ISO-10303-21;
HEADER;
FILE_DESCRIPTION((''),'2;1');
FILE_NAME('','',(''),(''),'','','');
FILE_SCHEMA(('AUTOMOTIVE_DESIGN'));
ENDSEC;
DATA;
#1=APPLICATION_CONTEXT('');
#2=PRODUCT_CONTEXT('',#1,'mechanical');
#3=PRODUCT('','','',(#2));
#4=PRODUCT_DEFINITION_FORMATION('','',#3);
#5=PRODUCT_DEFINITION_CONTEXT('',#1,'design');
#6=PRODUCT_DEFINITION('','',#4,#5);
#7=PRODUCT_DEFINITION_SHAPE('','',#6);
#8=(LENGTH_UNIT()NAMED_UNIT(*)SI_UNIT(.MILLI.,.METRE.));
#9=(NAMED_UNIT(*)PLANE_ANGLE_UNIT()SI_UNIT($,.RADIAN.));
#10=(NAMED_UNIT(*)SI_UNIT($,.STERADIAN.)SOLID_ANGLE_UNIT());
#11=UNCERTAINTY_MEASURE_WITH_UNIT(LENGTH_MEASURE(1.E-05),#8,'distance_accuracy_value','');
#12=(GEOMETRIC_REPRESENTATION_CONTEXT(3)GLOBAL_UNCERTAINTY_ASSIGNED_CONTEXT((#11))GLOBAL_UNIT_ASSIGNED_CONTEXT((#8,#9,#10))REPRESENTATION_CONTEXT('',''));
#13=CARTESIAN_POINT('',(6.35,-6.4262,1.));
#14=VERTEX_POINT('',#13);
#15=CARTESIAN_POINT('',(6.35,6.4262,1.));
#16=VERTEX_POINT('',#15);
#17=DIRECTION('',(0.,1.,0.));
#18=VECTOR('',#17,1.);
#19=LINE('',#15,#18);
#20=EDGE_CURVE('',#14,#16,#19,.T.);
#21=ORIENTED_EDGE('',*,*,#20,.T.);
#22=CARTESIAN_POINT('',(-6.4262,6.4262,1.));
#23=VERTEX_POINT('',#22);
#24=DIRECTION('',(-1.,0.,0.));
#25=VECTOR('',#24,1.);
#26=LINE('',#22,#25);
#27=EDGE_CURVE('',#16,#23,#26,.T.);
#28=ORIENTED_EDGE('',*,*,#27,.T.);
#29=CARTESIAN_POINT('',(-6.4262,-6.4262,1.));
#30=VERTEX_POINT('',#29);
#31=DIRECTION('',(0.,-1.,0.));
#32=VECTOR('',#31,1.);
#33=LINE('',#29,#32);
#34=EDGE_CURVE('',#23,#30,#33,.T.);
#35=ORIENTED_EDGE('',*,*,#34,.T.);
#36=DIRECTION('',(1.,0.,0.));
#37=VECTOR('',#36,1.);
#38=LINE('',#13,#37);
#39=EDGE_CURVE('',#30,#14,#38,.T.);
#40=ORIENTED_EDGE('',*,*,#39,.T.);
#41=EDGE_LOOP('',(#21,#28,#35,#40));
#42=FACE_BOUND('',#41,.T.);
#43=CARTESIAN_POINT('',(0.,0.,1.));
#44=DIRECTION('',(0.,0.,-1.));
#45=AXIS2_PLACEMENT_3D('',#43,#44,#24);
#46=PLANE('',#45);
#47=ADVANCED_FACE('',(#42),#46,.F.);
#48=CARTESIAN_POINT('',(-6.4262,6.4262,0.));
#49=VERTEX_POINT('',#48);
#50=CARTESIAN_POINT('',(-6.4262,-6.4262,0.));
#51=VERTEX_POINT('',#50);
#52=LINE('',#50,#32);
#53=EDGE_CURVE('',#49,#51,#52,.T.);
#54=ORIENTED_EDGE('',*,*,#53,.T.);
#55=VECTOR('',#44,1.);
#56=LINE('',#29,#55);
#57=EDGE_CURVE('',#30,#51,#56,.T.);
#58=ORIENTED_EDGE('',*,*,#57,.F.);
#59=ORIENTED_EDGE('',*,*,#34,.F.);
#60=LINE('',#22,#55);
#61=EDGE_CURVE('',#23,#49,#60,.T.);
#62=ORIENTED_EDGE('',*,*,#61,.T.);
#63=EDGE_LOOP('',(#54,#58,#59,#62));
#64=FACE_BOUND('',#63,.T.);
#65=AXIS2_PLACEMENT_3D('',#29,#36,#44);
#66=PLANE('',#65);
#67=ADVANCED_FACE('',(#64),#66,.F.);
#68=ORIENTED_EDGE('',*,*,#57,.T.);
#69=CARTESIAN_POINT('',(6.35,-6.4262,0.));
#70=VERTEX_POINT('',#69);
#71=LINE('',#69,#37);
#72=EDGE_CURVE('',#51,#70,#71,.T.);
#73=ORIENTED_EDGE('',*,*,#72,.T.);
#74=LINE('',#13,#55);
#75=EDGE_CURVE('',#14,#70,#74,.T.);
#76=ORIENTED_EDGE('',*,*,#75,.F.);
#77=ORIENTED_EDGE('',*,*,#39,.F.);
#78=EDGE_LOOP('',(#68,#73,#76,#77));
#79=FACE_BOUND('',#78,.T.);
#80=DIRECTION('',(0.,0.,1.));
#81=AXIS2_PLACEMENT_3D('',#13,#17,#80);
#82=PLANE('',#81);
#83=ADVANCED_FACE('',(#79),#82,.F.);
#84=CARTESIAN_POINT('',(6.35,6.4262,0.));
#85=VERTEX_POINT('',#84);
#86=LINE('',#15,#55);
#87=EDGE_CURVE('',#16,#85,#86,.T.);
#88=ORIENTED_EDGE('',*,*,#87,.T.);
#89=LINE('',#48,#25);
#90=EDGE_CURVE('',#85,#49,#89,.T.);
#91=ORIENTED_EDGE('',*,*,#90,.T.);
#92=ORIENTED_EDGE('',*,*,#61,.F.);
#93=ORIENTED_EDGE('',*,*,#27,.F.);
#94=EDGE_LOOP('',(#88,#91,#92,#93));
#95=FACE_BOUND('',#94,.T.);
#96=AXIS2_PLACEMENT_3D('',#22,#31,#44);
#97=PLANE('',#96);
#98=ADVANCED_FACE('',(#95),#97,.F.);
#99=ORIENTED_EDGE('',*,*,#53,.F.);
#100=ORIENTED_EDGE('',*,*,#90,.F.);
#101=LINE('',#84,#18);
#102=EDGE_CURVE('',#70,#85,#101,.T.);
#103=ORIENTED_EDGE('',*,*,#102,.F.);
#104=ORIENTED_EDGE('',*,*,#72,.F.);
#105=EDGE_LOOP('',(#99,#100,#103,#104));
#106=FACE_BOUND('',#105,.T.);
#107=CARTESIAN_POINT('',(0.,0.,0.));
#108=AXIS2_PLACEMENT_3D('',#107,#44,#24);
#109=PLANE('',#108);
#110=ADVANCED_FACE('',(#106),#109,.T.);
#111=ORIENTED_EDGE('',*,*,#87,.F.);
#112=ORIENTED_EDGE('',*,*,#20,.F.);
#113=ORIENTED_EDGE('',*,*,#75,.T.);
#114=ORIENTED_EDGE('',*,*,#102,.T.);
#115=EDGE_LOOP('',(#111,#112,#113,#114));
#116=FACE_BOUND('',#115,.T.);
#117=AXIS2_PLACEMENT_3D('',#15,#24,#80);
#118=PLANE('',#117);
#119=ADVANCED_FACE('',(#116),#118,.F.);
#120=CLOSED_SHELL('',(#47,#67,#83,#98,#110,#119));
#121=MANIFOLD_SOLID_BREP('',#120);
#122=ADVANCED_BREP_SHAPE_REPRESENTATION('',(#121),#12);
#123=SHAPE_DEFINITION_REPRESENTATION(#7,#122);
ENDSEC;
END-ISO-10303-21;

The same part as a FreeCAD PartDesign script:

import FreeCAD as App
import Part
import Sketcher
from FreeCAD import Vector
Q = App.Units.Quantity


def add_polygon(sketch, points):
    """Adds a closed chain of lines whose ends are joined by coincident constraints."""
    first, n = sketch.GeometryCount, len(points)
    for a, b in zip(points, points[1:] + points[:1]):
        sketch.addGeometry(Part.LineSegment(App.Vector(*a, 0), App.Vector(*b, 0)), False)
    for i in range(n):
        sketch.addConstraint(Sketcher.Constraint("Coincident", first + i, 2, first + (i + 1) % n, 1))

doc = App.newDocument("Part")
body = doc.addObject("PartDesign::Body", "Body")

# Sketch on XY plane
sketch1 = body.newObject("Sketcher::SketchObject", "Sketch")
sketch1.AttachmentSupport = (doc.getObject("XY_Plane"), [""])
sketch1.MapMode = "FlatFace"
add_polygon(sketch1, [(-6, 6), (-6, -6), (6, -6), (6, 6)])  # lines 0-3
sketch1.addConstraint([
    Sketcher.Constraint("Vertical", 0),
    Sketcher.Constraint("Horizontal", 1),
    Sketcher.Constraint("Vertical", 2),
    Sketcher.Constraint("Horizontal", 3),
    Sketcher.Constraint("DistanceX", 1, 1, 1, 2, Q("0.503 in")),
    Sketcher.Constraint("DistanceY", 0, 2, 0, 1, Q("0.506 in")),
    Sketcher.Constraint("DistanceX", -1, 1, 1, 2, Q("0.25 in")),
    Sketcher.Constraint("DistanceY", 0, 2, -1, 1, Q("0.253 in")),
])
pad1 = body.newObject("PartDesign::Pad", "Pad")
pad1.Profile = sketch1
pad1.Length = 1

doc.recompute()
